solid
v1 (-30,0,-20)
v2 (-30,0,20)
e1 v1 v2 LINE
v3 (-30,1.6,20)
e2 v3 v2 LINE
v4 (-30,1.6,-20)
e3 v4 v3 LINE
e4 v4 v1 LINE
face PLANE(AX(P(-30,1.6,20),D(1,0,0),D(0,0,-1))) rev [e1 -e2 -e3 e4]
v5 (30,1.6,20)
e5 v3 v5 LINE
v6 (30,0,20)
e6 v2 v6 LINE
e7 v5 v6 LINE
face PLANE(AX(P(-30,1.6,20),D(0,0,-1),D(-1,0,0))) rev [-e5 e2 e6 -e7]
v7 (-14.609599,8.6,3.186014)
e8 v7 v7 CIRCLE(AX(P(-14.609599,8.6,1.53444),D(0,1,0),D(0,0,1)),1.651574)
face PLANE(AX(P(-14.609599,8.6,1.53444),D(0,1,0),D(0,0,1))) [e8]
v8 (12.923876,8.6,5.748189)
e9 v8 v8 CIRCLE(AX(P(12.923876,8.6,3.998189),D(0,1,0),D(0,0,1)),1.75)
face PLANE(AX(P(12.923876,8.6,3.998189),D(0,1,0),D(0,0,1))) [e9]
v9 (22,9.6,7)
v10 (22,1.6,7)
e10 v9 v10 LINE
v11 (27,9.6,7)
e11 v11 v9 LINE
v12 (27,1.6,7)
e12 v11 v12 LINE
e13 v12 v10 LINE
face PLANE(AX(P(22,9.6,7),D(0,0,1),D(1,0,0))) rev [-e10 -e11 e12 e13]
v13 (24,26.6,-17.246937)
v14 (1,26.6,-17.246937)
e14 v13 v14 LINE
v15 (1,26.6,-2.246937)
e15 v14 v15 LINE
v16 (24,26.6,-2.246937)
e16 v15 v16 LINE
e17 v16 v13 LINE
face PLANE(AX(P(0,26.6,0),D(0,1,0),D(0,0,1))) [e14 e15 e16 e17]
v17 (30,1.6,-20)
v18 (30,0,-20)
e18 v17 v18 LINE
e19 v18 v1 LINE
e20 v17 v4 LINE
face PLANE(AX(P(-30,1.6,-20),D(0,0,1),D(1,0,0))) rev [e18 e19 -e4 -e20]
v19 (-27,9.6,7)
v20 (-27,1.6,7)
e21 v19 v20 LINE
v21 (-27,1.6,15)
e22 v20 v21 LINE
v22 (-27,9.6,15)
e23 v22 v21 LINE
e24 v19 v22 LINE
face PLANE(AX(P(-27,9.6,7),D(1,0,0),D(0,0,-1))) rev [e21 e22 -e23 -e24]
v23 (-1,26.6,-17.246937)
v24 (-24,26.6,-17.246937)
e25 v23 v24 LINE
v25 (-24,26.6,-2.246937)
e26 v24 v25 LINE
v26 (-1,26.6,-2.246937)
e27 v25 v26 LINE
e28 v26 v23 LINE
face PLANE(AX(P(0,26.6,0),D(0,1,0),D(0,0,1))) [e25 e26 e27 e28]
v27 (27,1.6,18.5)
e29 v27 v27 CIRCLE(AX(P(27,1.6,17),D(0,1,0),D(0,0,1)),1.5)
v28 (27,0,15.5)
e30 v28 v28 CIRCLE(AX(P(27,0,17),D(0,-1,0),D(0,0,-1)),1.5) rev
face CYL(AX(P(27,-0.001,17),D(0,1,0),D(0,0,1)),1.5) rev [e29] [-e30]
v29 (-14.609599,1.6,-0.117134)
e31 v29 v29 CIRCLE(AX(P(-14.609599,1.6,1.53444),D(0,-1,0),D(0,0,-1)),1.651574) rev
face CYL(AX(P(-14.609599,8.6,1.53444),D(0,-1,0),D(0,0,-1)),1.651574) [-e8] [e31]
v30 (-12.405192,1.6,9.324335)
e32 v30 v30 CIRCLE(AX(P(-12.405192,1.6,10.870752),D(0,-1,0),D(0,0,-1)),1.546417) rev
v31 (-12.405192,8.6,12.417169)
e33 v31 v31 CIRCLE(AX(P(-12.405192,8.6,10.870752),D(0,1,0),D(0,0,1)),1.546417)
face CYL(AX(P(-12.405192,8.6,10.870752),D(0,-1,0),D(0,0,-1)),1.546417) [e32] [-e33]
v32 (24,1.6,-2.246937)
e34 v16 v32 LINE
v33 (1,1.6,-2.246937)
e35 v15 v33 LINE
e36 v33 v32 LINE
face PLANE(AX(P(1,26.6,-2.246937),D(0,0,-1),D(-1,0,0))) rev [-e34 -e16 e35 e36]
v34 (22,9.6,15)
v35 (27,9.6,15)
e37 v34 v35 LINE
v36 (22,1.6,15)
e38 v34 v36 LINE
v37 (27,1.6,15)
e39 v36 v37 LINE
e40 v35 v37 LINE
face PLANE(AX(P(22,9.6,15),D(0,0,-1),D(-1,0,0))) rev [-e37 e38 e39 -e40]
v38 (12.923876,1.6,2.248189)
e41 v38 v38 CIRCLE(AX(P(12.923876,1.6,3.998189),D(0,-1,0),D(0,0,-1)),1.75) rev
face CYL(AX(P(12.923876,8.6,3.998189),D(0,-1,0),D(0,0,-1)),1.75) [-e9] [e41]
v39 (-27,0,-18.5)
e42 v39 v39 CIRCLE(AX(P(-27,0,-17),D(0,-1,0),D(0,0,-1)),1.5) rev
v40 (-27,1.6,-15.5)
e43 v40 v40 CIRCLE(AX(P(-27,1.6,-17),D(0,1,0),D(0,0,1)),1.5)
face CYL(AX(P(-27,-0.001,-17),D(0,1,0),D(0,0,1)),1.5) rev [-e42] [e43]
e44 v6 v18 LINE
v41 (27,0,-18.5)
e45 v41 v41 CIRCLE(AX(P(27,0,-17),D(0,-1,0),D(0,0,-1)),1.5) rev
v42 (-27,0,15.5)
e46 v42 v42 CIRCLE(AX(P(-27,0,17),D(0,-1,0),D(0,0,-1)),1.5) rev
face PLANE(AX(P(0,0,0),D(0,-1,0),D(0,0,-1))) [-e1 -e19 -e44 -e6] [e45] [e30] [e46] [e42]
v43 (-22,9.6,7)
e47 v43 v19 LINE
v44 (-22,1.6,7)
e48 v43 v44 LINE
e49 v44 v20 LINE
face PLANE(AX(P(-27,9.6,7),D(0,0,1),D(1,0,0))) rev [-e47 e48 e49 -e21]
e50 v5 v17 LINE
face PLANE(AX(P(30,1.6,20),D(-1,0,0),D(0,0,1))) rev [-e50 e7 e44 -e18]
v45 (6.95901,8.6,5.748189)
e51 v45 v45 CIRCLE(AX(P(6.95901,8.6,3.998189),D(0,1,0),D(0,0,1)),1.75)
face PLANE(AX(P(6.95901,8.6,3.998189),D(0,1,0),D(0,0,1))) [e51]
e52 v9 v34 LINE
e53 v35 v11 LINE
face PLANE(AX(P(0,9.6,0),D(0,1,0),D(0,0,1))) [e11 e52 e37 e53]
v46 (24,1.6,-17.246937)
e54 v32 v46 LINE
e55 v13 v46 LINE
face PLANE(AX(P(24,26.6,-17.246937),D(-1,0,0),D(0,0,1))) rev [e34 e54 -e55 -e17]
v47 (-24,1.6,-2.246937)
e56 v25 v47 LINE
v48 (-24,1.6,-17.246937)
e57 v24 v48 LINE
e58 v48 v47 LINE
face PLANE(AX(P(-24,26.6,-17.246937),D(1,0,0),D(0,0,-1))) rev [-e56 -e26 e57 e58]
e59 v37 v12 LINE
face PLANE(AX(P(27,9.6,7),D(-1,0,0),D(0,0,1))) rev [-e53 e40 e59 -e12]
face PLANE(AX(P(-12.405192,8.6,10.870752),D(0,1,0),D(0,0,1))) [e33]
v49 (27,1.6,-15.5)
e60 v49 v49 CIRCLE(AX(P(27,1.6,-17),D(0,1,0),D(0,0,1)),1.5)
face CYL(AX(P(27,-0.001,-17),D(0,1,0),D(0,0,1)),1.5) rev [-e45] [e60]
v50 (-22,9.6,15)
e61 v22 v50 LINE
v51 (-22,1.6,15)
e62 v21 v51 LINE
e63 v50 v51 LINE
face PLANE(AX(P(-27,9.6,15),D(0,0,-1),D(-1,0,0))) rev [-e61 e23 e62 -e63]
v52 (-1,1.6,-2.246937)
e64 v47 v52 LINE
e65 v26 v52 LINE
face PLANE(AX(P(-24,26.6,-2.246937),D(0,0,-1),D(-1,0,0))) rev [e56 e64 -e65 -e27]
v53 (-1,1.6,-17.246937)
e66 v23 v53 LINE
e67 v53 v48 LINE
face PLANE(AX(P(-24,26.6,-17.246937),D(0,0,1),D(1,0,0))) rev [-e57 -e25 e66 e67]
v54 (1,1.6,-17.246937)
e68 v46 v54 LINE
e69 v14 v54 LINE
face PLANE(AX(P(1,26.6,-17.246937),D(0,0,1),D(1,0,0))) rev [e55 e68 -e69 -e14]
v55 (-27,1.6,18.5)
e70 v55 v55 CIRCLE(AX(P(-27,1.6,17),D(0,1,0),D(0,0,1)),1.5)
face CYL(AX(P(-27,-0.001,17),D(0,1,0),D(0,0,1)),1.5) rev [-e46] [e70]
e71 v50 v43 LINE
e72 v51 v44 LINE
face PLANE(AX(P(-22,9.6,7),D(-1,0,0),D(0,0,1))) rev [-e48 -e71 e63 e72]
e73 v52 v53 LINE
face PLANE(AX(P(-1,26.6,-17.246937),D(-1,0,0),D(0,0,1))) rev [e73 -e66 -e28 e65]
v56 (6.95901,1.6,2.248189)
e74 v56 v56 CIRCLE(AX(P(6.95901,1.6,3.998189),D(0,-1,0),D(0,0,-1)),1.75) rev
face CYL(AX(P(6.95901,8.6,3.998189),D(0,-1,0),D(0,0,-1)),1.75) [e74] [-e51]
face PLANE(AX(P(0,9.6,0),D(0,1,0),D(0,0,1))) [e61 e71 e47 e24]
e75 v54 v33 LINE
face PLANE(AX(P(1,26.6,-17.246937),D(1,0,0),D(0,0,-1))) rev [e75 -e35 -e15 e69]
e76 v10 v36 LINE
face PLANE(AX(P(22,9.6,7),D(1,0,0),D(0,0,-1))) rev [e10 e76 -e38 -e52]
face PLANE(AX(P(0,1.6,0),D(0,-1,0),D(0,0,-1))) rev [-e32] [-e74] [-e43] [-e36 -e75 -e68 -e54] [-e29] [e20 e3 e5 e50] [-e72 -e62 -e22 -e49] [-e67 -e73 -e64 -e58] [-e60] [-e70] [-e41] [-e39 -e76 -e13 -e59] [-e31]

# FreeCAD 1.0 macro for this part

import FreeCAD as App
import Part
import Sketcher
Q = App.Units.Quantity

doc = App.newDocument("Part")
body = doc.addObject("PartDesign::Body", "Body")

sketch1 = body.newObject("Sketcher::SketchObject", "Sketch")
sketch1.AttachmentSupport = (doc.getObject("XZ_Plane"), [""])
sketch1.MapMode = "FlatFace"
sketch1.addGeometry([
    Part.LineSegment(App.Vector(-30, -20, 0), App.Vector(-30, 20, 0)),
    Part.LineSegment(App.Vector(-30, 20, 0), App.Vector(30, 20, 0)),
    Part.LineSegment(App.Vector(30, 20, 0), App.Vector(30, -20, 0)),
    Part.LineSegment(App.Vector(30, -20, 0), App.Vector(-30, -20, 0)),
], False)
sketch1.addConstraint([
    Sketcher.Constraint("Coincident", 0, 2, 1, 1),
    Sketcher.Constraint("Coincident", 1, 2, 2, 1),
    Sketcher.Constraint("Coincident", 2, 2, 3, 1),
    Sketcher.Constraint("Coincident", 3, 2, 0, 1),
    Sketcher.Constraint("Vertical", 0),
    Sketcher.Constraint("Horizontal", 1),
    Sketcher.Constraint("Vertical", 2),
    Sketcher.Constraint("Horizontal", 3),
    Sketcher.Constraint("Symmetric", 0, 2, 2, 2, -1, 1),
    Sketcher.Constraint("DistanceX", 1, 1, 1, 2, Q("60 mm")),
    Sketcher.Constraint("DistanceY", 0, 1, 0, 2, Q("40 mm")),
])
pad1 = body.newObject("PartDesign::Pad", "Pad")
pad1.Profile = sketch1
pad1.Length = 1.6
pad1.Reversed = True

sketch2 = body.newObject("Sketcher::SketchObject", "Sketch001")
sketch2.AttachmentSupport = (doc.getObject("XZ_Plane"), [""])
sketch2.MapMode = "FlatFace"
sketch2.AttachmentOffset = App.Placement(App.Vector(0, 0, -1.6), App.Rotation())
sketch2.addGeometry([
    Part.LineSegment(App.Vector(-24, -17, 0), App.Vector(-24, -2, 0)),
    Part.LineSegment(App.Vector(-24, -2, 0), App.Vector(-1, -2, 0)),
    Part.LineSegment(App.Vector(-1, -2, 0), App.Vector(-1, -17, 0)),
    Part.LineSegment(App.Vector(-1, -17, 0), App.Vector(-24, -17, 0)),
    Part.LineSegment(App.Vector(1, -17, 0), App.Vector(1, -2, 0)),
    Part.LineSegment(App.Vector(1, -2, 0), App.Vector(24, -2, 0)),
    Part.LineSegment(App.Vector(24, -2, 0), App.Vector(24, -17, 0)),
    Part.LineSegment(App.Vector(24, -17, 0), App.Vector(1, -17, 0)),
], False)
sketch2.addConstraint([
    Sketcher.Constraint("Coincident", 0, 2, 1, 1),
    Sketcher.Constraint("Coincident", 1, 2, 2, 1),
    Sketcher.Constraint("Coincident", 2, 2, 3, 1),
    Sketcher.Constraint("Coincident", 3, 2, 0, 1),
    Sketcher.Constraint("Coincident", 4, 2, 5, 1),
    Sketcher.Constraint("Coincident", 5, 2, 6, 1),
    Sketcher.Constraint("Coincident", 6, 2, 7, 1),
    Sketcher.Constraint("Coincident", 7, 2, 4, 1),
    Sketcher.Constraint("Vertical", 0),
    Sketcher.Constraint("Horizontal", 1),
    Sketcher.Constraint("Vertical", 2),
    Sketcher.Constraint("Horizontal", 3),
    Sketcher.Constraint("Vertical", 4),
    Sketcher.Constraint("Horizontal", 5),
    Sketcher.Constraint("Vertical", 6),
    Sketcher.Constraint("Horizontal", 7),
    Sketcher.Constraint("Symmetric", 1, 2, 4, 2, -2),
    Sketcher.Constraint("Symmetric", 3, 2, 6, 2, -2),
    Sketcher.Constraint("DistanceX", 1, 1, 1, 2, Q("23 mm")),
    Sketcher.Constraint("DistanceY", 0, 1, 0, 2, Q("15 mm")),
    Sketcher.Constraint("DistanceX", 0, 2, -1, 1, Q("24 mm")),
    Sketcher.Constraint("DistanceY", 0, 2, -1, 1, Q("2.246937 mm")),
])
pad2 = body.newObject("PartDesign::Pad", "Pad001")
pad2.Profile = sketch2
pad2.Length = 25
pad2.Reversed = True

sketch3 = body.newObject("Sketcher::SketchObject", "Sketch002")
sketch3.AttachmentSupport = (doc.getObject("XZ_Plane"), [""])
sketch3.MapMode = "FlatFace"
sketch3.AttachmentOffset = App.Placement(App.Vector(0, 0, -1.6), App.Rotation())
sketch3.addGeometry([
    Part.LineSegment(App.Vector(-27, 7, 0), App.Vector(-27, 15, 0)),
    Part.LineSegment(App.Vector(-27, 15, 0), App.Vector(-22, 15, 0)),
    Part.LineSegment(App.Vector(-22, 15, 0), App.Vector(-22, 7, 0)),
    Part.LineSegment(App.Vector(-22, 7, 0), App.Vector(-27, 7, 0)),
    Part.LineSegment(App.Vector(22, 7, 0), App.Vector(22, 15, 0)),
    Part.LineSegment(App.Vector(22, 15, 0), App.Vector(27, 15, 0)),
    Part.LineSegment(App.Vector(27, 15, 0), App.Vector(27, 7, 0)),
    Part.LineSegment(App.Vector(27, 7, 0), App.Vector(22, 7, 0)),
], False)
sketch3.addConstraint([
    Sketcher.Constraint("Coincident", 0, 2, 1, 1),
    Sketcher.Constraint("Coincident", 1, 2, 2, 1),
    Sketcher.Constraint("Coincident", 2, 2, 3, 1),
    Sketcher.Constraint("Coincident", 3, 2, 0, 1),
    Sketcher.Constraint("Coincident", 4, 2, 5, 1),
    Sketcher.Constraint("Coincident", 5, 2, 6, 1),
    Sketcher.Constraint("Coincident", 6, 2, 7, 1),
    Sketcher.Constraint("Coincident", 7, 2, 4, 1),
    Sketcher.Constraint("Vertical", 0),
    Sketcher.Constraint("Horizontal", 1),
    Sketcher.Constraint("Vertical", 2),
    Sketcher.Constraint("Horizontal", 3),
    Sketcher.Constraint("Vertical", 4),
    Sketcher.Constraint("Horizontal", 5),
    Sketcher.Constraint("Vertical", 6),
    Sketcher.Constraint("Horizontal", 7),
    Sketcher.Constraint("Symmetric", 1, 2, 4, 2, -2),
    Sketcher.Constraint("Symmetric", 3, 2, 6, 2, -2),
    Sketcher.Constraint("DistanceX", 1, 1, 1, 2, Q("5 mm")),
    Sketcher.Constraint("DistanceY", 0, 1, 0, 2, Q("8 mm")),
    Sketcher.Constraint("DistanceX", 0, 2, -1, 1, Q("27 mm")),
    Sketcher.Constraint("DistanceY", -1, 1, 0, 2, Q("15 mm")),
])
pad3 = body.newObject("PartDesign::Pad", "Pad002")
pad3.Profile = sketch3
pad3.Length = 8
pad3.Reversed = True

sketch4 = body.newObject("Sketcher::SketchObject", "Sketch003")
sketch4.AttachmentSupport = (doc.getObject("XZ_Plane"), [""])
sketch4.MapMode = "FlatFace"
sketch4.AttachmentOffset = App.Placement(App.Vector(0, 0, -1.6), App.Rotation())
sketch4.addGeometry([
    Part.Circle(App.Vector(-14.6, 1.5, 0), App.Vector(0, 0, 1), 1.7),
    Part.Circle(App.Vector(7, 4, 0), App.Vector(0, 0, 1), 1.8),
    Part.Circle(App.Vector(-12.4, 10.9, 0), App.Vector(0, 0, 1), 1.5),
    Part.Circle(App.Vector(12.9, 4, 0), App.Vector(0, 0, 1), 1.8),
], False)
sketch4.addConstraint([
    Sketcher.Constraint("Equal", 1, 3),
    Sketcher.Constraint("Horizontal", 1, 3, 3, 3),
    Sketcher.Constraint("Diameter", 1, Q("3.5 mm")),
    Sketcher.Constraint("Diameter", 0, Q("3.303148 mm")),
    Sketcher.Constraint("Diameter", 2, Q("3.092834 mm")),
    Sketcher.Constraint("DistanceX", 0, 3, -1, 1, Q("14.609599 mm")),
    Sketcher.Constraint("DistanceY", -1, 1, 0, 3, Q("1.53444 mm")),
    Sketcher.Constraint("DistanceX", -1, 1, 1, 3, Q("6.95901 mm")),
    Sketcher.Constraint("DistanceY", -1, 1, 1, 3, Q("3.998189 mm")),
    Sketcher.Constraint("DistanceX", 2, 3, -1, 1, Q("12.405192 mm")),
    Sketcher.Constraint("DistanceY", -1, 1, 2, 3, Q("10.870752 mm")),
    Sketcher.Constraint("DistanceX", -1, 1, 3, 3, Q("12.923876 mm")),
])
pad4 = body.newObject("PartDesign::Pad", "Pad003")
pad4.Profile = sketch4
pad4.Length = 7
pad4.Reversed = True

sketch5 = body.newObject("Sketcher::SketchObject", "Sketch004")
sketch5.AttachmentSupport = (doc.getObject("XZ_Plane"), [""])
sketch5.MapMode = "FlatFace"
sketch5.AttachmentOffset = App.Placement(App.Vector(0, 0, -1.6), App.Rotation())
sketch5.addGeometry(Part.Circle(App.Vector(-27, -17, 0), App.Vector(0, 0, 1), 1.5), False)
sketch5.addConstraint([
    Sketcher.Constraint("Diameter", 0, Q("3 mm")),
    Sketcher.Constraint("DistanceX", 0, 3, -1, 1, Q("27 mm")),
    Sketcher.Constraint("DistanceY", 0, 3, -1, 1, Q("17 mm")),
])
pocket1 = body.newObject("PartDesign::Pocket", "Pocket")
pocket1.Profile = sketch5
pocket1.Type = "UpToFirst"
pocket1.Reversed = True

sketch6 = body.newObject("Sketcher::SketchObject", "Sketch005")
sketch6.AttachmentSupport = (doc.getObject("XZ_Plane"), [""])
sketch6.MapMode = "FlatFace"
sketch6.AttachmentOffset = App.Placement(App.Vector(0, 0, -1.6), App.Rotation())
sketch6.addGeometry(Part.Circle(App.Vector(-27, 17, 0), App.Vector(0, 0, 1), 1.5), False)
sketch6.addConstraint([
    Sketcher.Constraint("Diameter", 0, Q("3 mm")),
    Sketcher.Constraint("DistanceX", 0, 3, -1, 1, Q("27 mm")),
    Sketcher.Constraint("DistanceY", -1, 1, 0, 3, Q("17 mm")),
])
pocket2 = body.newObject("PartDesign::Pocket", "Pocket001")
pocket2.Profile = sketch6
pocket2.Type = "UpToFirst"
pocket2.Reversed = True

sketch7 = body.newObject("Sketcher::SketchObject", "Sketch006")
sketch7.AttachmentSupport = (doc.getObject("XZ_Plane"), [""])
sketch7.MapMode = "FlatFace"
sketch7.AttachmentOffset = App.Placement(App.Vector(0, 0, -1.6), App.Rotation())
sketch7.addGeometry(Part.Circle(App.Vector(27, 17, 0), App.Vector(0, 0, 1), 1.5), False)
sketch7.addConstraint([
    Sketcher.Constraint("Diameter", 0, Q("3 mm")),
    Sketcher.Constraint("DistanceX", -1, 1, 0, 3, Q("27 mm")),
    Sketcher.Constraint("DistanceY", -1, 1, 0, 3, Q("17 mm")),
])
pocket3 = body.newObject("PartDesign::Pocket", "Pocket002")
pocket3.Profile = sketch7
pocket3.Type = "UpToFirst"
pocket3.Reversed = True

sketch8 = body.newObject("Sketcher::SketchObject", "Sketch007")
sketch8.AttachmentSupport = (doc.getObject("XZ_Plane"), [""])
sketch8.MapMode = "FlatFace"
sketch8.AttachmentOffset = App.Placement(App.Vector(0, 0, -1.6), App.Rotation())
sketch8.addGeometry(Part.Circle(App.Vector(27, -17, 0), App.Vector(0, 0, 1), 1.5), False)
sketch8.addConstraint([
    Sketcher.Constraint("Diameter", 0, Q("3 mm")),
    Sketcher.Constraint("DistanceX", -1, 1, 0, 3, Q("27 mm")),
    Sketcher.Constraint("DistanceY", 0, 3, -1, 1, Q("17 mm")),
])
pocket4 = body.newObject("PartDesign::Pocket", "Pocket003")
pocket4.Profile = sketch8
pocket4.Type = "UpToFirst"
pocket4.Reversed = True

doc.recompute()
